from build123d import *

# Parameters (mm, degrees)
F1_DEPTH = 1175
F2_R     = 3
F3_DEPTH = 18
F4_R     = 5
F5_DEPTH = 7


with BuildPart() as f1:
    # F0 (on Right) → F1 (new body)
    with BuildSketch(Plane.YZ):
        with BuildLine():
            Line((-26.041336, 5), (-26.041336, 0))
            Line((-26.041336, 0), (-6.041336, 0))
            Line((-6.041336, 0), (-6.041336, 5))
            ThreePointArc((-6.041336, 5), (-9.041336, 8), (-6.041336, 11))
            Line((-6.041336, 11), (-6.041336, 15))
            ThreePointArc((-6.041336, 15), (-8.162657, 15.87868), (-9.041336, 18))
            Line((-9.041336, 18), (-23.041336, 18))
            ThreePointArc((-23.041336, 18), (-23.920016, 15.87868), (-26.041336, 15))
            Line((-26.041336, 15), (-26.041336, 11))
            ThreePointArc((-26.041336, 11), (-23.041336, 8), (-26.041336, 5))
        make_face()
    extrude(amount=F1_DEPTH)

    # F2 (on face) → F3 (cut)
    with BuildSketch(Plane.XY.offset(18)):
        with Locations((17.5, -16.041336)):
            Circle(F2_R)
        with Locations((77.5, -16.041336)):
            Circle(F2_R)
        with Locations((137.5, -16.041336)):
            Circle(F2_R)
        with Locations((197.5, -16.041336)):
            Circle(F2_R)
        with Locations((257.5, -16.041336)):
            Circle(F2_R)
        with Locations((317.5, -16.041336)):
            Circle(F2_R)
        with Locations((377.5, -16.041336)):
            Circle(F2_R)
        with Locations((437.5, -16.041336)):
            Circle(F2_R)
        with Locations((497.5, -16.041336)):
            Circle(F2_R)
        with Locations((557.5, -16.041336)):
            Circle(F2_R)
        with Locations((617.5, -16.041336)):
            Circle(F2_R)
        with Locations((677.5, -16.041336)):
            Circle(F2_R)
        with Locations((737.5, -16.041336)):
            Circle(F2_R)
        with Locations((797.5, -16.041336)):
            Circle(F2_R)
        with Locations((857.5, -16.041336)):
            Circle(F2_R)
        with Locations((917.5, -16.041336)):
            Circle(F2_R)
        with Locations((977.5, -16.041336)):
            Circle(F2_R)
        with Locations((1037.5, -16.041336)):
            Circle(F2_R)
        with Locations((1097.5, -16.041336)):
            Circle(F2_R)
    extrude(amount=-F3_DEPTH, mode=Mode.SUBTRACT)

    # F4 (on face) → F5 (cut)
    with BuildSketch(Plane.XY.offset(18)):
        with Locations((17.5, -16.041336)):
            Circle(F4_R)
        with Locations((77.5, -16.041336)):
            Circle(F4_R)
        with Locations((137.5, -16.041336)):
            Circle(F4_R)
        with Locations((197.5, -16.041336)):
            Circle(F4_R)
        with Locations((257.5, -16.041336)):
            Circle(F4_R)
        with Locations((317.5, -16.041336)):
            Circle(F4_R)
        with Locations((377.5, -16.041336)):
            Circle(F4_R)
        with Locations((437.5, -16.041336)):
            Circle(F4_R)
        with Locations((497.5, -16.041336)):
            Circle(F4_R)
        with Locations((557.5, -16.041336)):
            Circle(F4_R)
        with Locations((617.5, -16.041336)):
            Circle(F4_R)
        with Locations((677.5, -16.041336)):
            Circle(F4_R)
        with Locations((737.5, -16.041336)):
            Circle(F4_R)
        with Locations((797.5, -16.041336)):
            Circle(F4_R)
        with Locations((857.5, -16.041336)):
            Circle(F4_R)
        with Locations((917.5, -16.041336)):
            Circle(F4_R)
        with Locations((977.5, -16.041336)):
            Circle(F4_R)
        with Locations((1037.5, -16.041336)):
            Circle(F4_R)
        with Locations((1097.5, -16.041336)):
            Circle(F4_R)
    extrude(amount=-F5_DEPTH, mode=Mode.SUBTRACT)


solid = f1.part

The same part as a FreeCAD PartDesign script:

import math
import FreeCAD as App
import Part
import Sketcher

V = App.Vector
Q = App.Units.Quantity

doc = App.newDocument("Part")
body = doc.addObject("PartDesign::Body", "Body")

sketch1 = body.newObject("Sketcher::SketchObject", "Sketch")
sketch1.AttachmentSupport = (doc.getObject("YZ_Plane"), [""])
sketch1.MapMode = "FlatFace"
sketch1.addGeometry([
    Part.LineSegment(V(-26, 5, 0), V(-26, 0, 0)),
    Part.LineSegment(V(-26, 0, 0), V(-6, 0, 0)),
    Part.LineSegment(V(-6, 0, 0), V(-6, 5, 0)),
    Part.ArcOfCircle(Part.Circle(V(-6, 8, 0), V(0, 0, 1), 3), math.radians(90), math.radians(270)),
    Part.LineSegment(V(-6, 11, 0), V(-6, 15, 0)),
    Part.ArcOfCircle(Part.Circle(V(-6, 18, 0), V(0, 0, 1), 3), math.radians(180), math.radians(270)),
    Part.LineSegment(V(-9, 18, 0), V(-23, 18, 0)),
    Part.ArcOfCircle(Part.Circle(V(-26, 18, 0), V(0, 0, 1), 3), math.radians(-90), math.radians(0)),
    Part.LineSegment(V(-26, 15, 0), V(-26, 11, 0)),
    Part.ArcOfCircle(Part.Circle(V(-26, 8, 0), V(0, 0, 1), 3), math.radians(-90), math.radians(90)),
], False)
sketch1.addConstraint([
    Sketcher.Constraint("Coincident", 0, 2, 1, 1),
    Sketcher.Constraint("Coincident", 1, 2, 2, 1),
    Sketcher.Constraint("Coincident", 2, 2, 3, 2),
    Sketcher.Constraint("Coincident", 3, 1, 4, 1),
    Sketcher.Constraint("Coincident", 4, 2, 5, 2),
    Sketcher.Constraint("Coincident", 5, 1, 6, 1),
    Sketcher.Constraint("Coincident", 6, 2, 7, 2),
    Sketcher.Constraint("Coincident", 7, 1, 8, 1),
    Sketcher.Constraint("Coincident", 8, 2, 9, 2),
    Sketcher.Constraint("Coincident", 9, 1, 0, 1),
    Sketcher.Constraint("Vertical", 0),
    Sketcher.Constraint("Horizontal", 1),
    Sketcher.Constraint("Vertical", 2),
    Sketcher.Constraint("Vertical", 4),
    Sketcher.Constraint("Horizontal", 6),
    Sketcher.Constraint("Vertical", 8),
    Sketcher.Constraint("Equal", 3, 5),
    Sketcher.Constraint("Equal", 5, 7),
    Sketcher.Constraint("Equal", 7, 9),
    Sketcher.Constraint("PointOnObject", 0, 2, -1),
    Sketcher.Constraint("Horizontal", 5, 3, 7, 3),
    Sketcher.Constraint("Horizontal", 3, 3, 9, 3),
    Sketcher.Constraint("Horizontal", 7, 3, 5, 1),
    Sketcher.Constraint("Vertical", 3, 3, 5, 3),
    Sketcher.Constraint("Vertical", 7, 3, 9, 3),
    Sketcher.Constraint("Vertical", 9, 3, 0, 2),
    Sketcher.Constraint("Vertical", 5, 3, 1, 2),
    Sketcher.Constraint("Vertical", 2, 2, 3, 1),
    Sketcher.Constraint("Vertical", 0, 2, 7, 1),
    Sketcher.Constraint("Radius", 3, Q("3 mm")),
    Sketcher.Constraint("DistanceX", 1, 1, 1, 2, Q("20 mm")),
    Sketcher.Constraint("DistanceY", 0, 2, 0, 1, Q("5 mm")),
    Sketcher.Constraint("DistanceY", 4, 1, 4, 2, Q("4 mm")),
    Sketcher.Constraint("DistanceX", 3, 3, -1, 1, Q("6.041336 mm")),
])
pad1 = body.newObject("PartDesign::Pad", "Pad")
pad1.Profile = sketch1
pad1.Length = 1175

sketch2 = body.newObject("Sketcher::SketchObject", "Sketch001")
sketch2.AttachmentSupport = (doc.getObject("XY_Plane"), [""])
sketch2.MapMode = "FlatFace"
sketch2.AttachmentOffset = App.Placement(V(0, 0, 18), App.Rotation())
sketch2.addGeometry([
    Part.Circle(V(17.5, -16, 0), V(0, 0, 1), 3),
    Part.Circle(V(77.5, -16, 0), V(0, 0, 1), 3),
    Part.Circle(V(137.5, -16, 0), V(0, 0, 1), 3),
    Part.Circle(V(197.5, -16, 0), V(0, 0, 1), 3),
    Part.Circle(V(257.5, -16, 0), V(0, 0, 1), 3),
    Part.Circle(V(317.5, -16, 0), V(0, 0, 1), 3),
    Part.Circle(V(377.5, -16, 0), V(0, 0, 1), 3),
    Part.Circle(V(437.5, -16, 0), V(0, 0, 1), 3),
    Part.Circle(V(497.5, -16, 0), V(0, 0, 1), 3),
    Part.Circle(V(557.5, -16, 0), V(0, 0, 1), 3),
    Part.Circle(V(617.5, -16, 0), V(0, 0, 1), 3),
    Part.Circle(V(677.5, -16, 0), V(0, 0, 1), 3),
    Part.Circle(V(737.5, -16, 0), V(0, 0, 1), 3),
    Part.Circle(V(797.5, -16, 0), V(0, 0, 1), 3),
    Part.Circle(V(857.5, -16, 0), V(0, 0, 1), 3),
    Part.Circle(V(917.5, -16, 0), V(0, 0, 1), 3),
    Part.Circle(V(977.5, -16, 0), V(0, 0, 1), 3),
    Part.Circle(V(1037.5, -16, 0), V(0, 0, 1), 3),
    Part.Circle(V(1097.5, -16, 0), V(0, 0, 1), 3),
], False)
sketch2.addConstraint([
    Sketcher.Constraint("Equal", 0, 1),
    Sketcher.Constraint("Equal", 1, 2),
    Sketcher.Constraint("Equal", 2, 3),
    Sketcher.Constraint("Equal", 3, 4),
    Sketcher.Constraint("Equal", 4, 5),
    Sketcher.Constraint("Equal", 5, 6),
    Sketcher.Constraint("Equal", 6, 7),
    Sketcher.Constraint("Equal", 7, 8),
    Sketcher.Constraint("Equal", 8, 9),
    Sketcher.Constraint("Equal", 9, 10),
    Sketcher.Constraint("Equal", 10, 11),
    Sketcher.Constraint("Equal", 11, 12),
    Sketcher.Constraint("Equal", 12, 13),
    Sketcher.Constraint("Equal", 13, 14),
    Sketcher.Constraint("Equal", 14, 15),
    Sketcher.Constraint("Equal", 15, 16),
    Sketcher.Constraint("Equal", 16, 17),
    Sketcher.Constraint("Equal", 17, 18),
    Sketcher.Constraint("Horizontal", 0, 3, 1, 3),
    Sketcher.Constraint("Horizontal", 1, 3, 2, 3),
    Sketcher.Constraint("Horizontal", 2, 3, 3, 3),
    Sketcher.Constraint("Horizontal", 3, 3, 4, 3),
    Sketcher.Constraint("Horizontal", 4, 3, 5, 3),
    Sketcher.Constraint("Horizontal", 5, 3, 6, 3),
    Sketcher.Constraint("Horizontal", 6, 3, 7, 3),
    Sketcher.Constraint("Horizontal", 7, 3, 8, 3),
    Sketcher.Constraint("Horizontal", 8, 3, 9, 3),
    Sketcher.Constraint("Horizontal", 9, 3, 10, 3),
    Sketcher.Constraint("Horizontal", 10, 3, 11, 3),
    Sketcher.Constraint("Horizontal", 11, 3, 12, 3),
    Sketcher.Constraint("Horizontal", 12, 3, 13, 3),
    Sketcher.Constraint("Horizontal", 13, 3, 14, 3),
    Sketcher.Constraint("Horizontal", 14, 3, 15, 3),
    Sketcher.Constraint("Horizontal", 15, 3, 16, 3),
    Sketcher.Constraint("Horizontal", 16, 3, 17, 3),
    Sketcher.Constraint("Horizontal", 17, 3, 18, 3),
    Sketcher.Constraint("Diameter", 0, Q("6 mm")),
    Sketcher.Constraint("DistanceX", 0, 3, 1, 3, Q("60 mm")),
    Sketcher.Constraint("DistanceX", 1, 3, 2, 3, Q("60 mm")),
    Sketcher.Constraint("DistanceX", 2, 3, 3, 3, Q("60 mm")),
    Sketcher.Constraint("DistanceX", 3, 3, 4, 3, Q("60 mm")),
    Sketcher.Constraint("DistanceX", 4, 3, 5, 3, Q("60 mm")),
    Sketcher.Constraint("DistanceX", 5, 3, 6, 3, Q("60 mm")),
    Sketcher.Constraint("DistanceX", 6, 3, 7, 3, Q("60 mm")),
    Sketcher.Constraint("DistanceX", 7, 3, 8, 3, Q("60 mm")),
    Sketcher.Constraint("DistanceX", 8, 3, 9, 3, Q("60 mm")),
    Sketcher.Constraint("DistanceX", 9, 3, 10, 3, Q("60 mm")),
    Sketcher.Constraint("DistanceX", 10, 3, 11, 3, Q("60 mm")),
    Sketcher.Constraint("DistanceX", 11, 3, 12, 3, Q("60 mm")),
    Sketcher.Constraint("DistanceX", 12, 3, 13, 3, Q("60 mm")),
    Sketcher.Constraint("DistanceX", 13, 3, 14, 3, Q("60 mm")),
    Sketcher.Constraint("DistanceX", 14, 3, 15, 3, Q("60 mm")),
    Sketcher.Constraint("DistanceX", 15, 3, 16, 3, Q("60 mm")),
    Sketcher.Constraint("DistanceX", 16, 3, 17, 3, Q("60 mm")),
    Sketcher.Constraint("DistanceX", 17, 3, 18, 3, Q("60 mm")),
    Sketcher.Constraint("DistanceX", -1, 1, 0, 3, Q("17.5 mm")),
    Sketcher.Constraint("DistanceY", 0, 3, -1, 1, Q("16.041336 mm")),
])
pocket1 = body.newObject("PartDesign::Pocket", "Pocket")
pocket1.Profile = sketch2
pocket1.Length = 18

sketch3 = body.newObject("Sketcher::SketchObject", "Sketch002")
sketch3.AttachmentSupport = (doc.getObject("XY_Plane"), [""])
sketch3.MapMode = "FlatFace"
sketch3.AttachmentOffset = App.Placement(V(0, 0, 18), App.Rotation())
sketch3.addGeometry([
    Part.Circle(V(18, -16, 0), V(0, 0, 1), 5),
    Part.Circle(V(78, -16, 0), V(0, 0, 1), 5),
    Part.Circle(V(138, -16, 0), V(0, 0, 1), 5),
    Part.Circle(V(198, -16, 0), V(0, 0, 1), 5),
    Part.Circle(V(258, -16, 0), V(0, 0, 1), 5),
    Part.Circle(V(318, -16, 0), V(0, 0, 1), 5),
    Part.Circle(V(378, -16, 0), V(0, 0, 1), 5),
    Part.Circle(V(438, -16, 0), V(0, 0, 1), 5),
    Part.Circle(V(498, -16, 0), V(0, 0, 1), 5),
    Part.Circle(V(558, -16, 0), V(0, 0, 1), 5),
    Part.Circle(V(618, -16, 0), V(0, 0, 1), 5),
    Part.Circle(V(678, -16, 0), V(0, 0, 1), 5),
    Part.Circle(V(738, -16, 0), V(0, 0, 1), 5),
    Part.Circle(V(798, -16, 0), V(0, 0, 1), 5),
    Part.Circle(V(858, -16, 0), V(0, 0, 1), 5),
    Part.Circle(V(918, -16, 0), V(0, 0, 1), 5),
    Part.Circle(V(978, -16, 0), V(0, 0, 1), 5),
    Part.Circle(V(1038, -16, 0), V(0, 0, 1), 5),
    Part.Circle(V(1098, -16, 0), V(0, 0, 1), 5),
], False)
sketch3.addConstraint([
    Sketcher.Constraint("Equal", 0, 1),
    Sketcher.Constraint("Equal", 1, 2),
    Sketcher.Constraint("Equal", 2, 3),
    Sketcher.Constraint("Equal", 3, 4),
    Sketcher.Constraint("Equal", 4, 5),
    Sketcher.Constraint("Equal", 5, 6),
    Sketcher.Constraint("Equal", 6, 7),
    Sketcher.Constraint("Equal", 7, 8),
    Sketcher.Constraint("Equal", 8, 9),
    Sketcher.Constraint("Equal", 9, 10),
    Sketcher.Constraint("Equal", 10, 11),
    Sketcher.Constraint("Equal", 11, 12),
    Sketcher.Constraint("Equal", 12, 13),
    Sketcher.Constraint("Equal", 13, 14),
    Sketcher.Constraint("Equal", 14, 15),
    Sketcher.Constraint("Equal", 15, 16),
    Sketcher.Constraint("Equal", 16, 17),
    Sketcher.Constraint("Equal", 17, 18),
    Sketcher.Constraint("Horizontal", 0, 3, 1, 3),
    Sketcher.Constraint("Horizontal", 1, 3, 2, 3),
    Sketcher.Constraint("Horizontal", 2, 3, 3, 3),
    Sketcher.Constraint("Horizontal", 3, 3, 4, 3),
    Sketcher.Constraint("Horizontal", 4, 3, 5, 3),
    Sketcher.Constraint("Horizontal", 5, 3, 6, 3),
    Sketcher.Constraint("Horizontal", 6, 3, 7, 3),
    Sketcher.Constraint("Horizontal", 7, 3, 8, 3),
    Sketcher.Constraint("Horizontal", 8, 3, 9, 3),
    Sketcher.Constraint("Horizontal", 9, 3, 10, 3),
    Sketcher.Constraint("Horizontal", 10, 3, 11, 3),
    Sketcher.Constraint("Horizontal", 11, 3, 12, 3),
    Sketcher.Constraint("Horizontal", 12, 3, 13, 3),
    Sketcher.Constraint("Horizontal", 13, 3, 14, 3),
    Sketcher.Constraint("Horizontal", 14, 3, 15, 3),
    Sketcher.Constraint("Horizontal", 15, 3, 16, 3),
    Sketcher.Constraint("Horizontal", 16, 3, 17, 3),
    Sketcher.Constraint("Horizontal", 17, 3, 18, 3),
    Sketcher.Constraint("Diameter", 0, Q("10 mm")),
    Sketcher.Constraint("DistanceX", 0, 3, 1, 3, Q("60 mm")),
    Sketcher.Constraint("DistanceX", 1, 3, 2, 3, Q("60 mm")),
    Sketcher.Constraint("DistanceX", 2, 3, 3, 3, Q("60 mm")),
    Sketcher.Constraint("DistanceX", 3, 3, 4, 3, Q("60 mm")),
    Sketcher.Constraint("DistanceX", 4, 3, 5, 3, Q("60 mm")),
    Sketcher.Constraint("DistanceX", 5, 3, 6, 3, Q("60 mm")),
    Sketcher.Constraint("DistanceX", 6, 3, 7, 3, Q("60 mm")),
    Sketcher.Constraint("DistanceX", 7, 3, 8, 3, Q("60 mm")),
    Sketcher.Constraint("DistanceX", 8, 3, 9, 3, Q("60 mm")),
    Sketcher.Constraint("DistanceX", 9, 3, 10, 3, Q("60 mm")),
    Sketcher.Constraint("DistanceX", 10, 3, 11, 3, Q("60 mm")),
    Sketcher.Constraint("DistanceX", 11, 3, 12, 3, Q("60 mm")),
    Sketcher.Constraint("DistanceX", 12, 3, 13, 3, Q("60 mm")),
    Sketcher.Constraint("DistanceX", 13, 3, 14, 3, Q("60 mm")),
    Sketcher.Constraint("DistanceX", 14, 3, 15, 3, Q("60 mm")),
    Sketcher.Constraint("DistanceX", 15, 3, 16, 3, Q("60 mm")),
    Sketcher.Constraint("DistanceX", 16, 3, 17, 3, Q("60 mm")),
    Sketcher.Constraint("DistanceX", 17, 3, 18, 3, Q("60 mm")),
    Sketcher.Constraint("DistanceX", -1, 1, 0, 3, Q("17.5 mm")),
    Sketcher.Constraint("DistanceY", 0, 3, -1, 1, Q("16.041336 mm")),
])
pocket2 = body.newObject("PartDesign::Pocket", "Pocket001")
pocket2.Profile = sketch3
pocket2.Length = 7

doc.recompute()
